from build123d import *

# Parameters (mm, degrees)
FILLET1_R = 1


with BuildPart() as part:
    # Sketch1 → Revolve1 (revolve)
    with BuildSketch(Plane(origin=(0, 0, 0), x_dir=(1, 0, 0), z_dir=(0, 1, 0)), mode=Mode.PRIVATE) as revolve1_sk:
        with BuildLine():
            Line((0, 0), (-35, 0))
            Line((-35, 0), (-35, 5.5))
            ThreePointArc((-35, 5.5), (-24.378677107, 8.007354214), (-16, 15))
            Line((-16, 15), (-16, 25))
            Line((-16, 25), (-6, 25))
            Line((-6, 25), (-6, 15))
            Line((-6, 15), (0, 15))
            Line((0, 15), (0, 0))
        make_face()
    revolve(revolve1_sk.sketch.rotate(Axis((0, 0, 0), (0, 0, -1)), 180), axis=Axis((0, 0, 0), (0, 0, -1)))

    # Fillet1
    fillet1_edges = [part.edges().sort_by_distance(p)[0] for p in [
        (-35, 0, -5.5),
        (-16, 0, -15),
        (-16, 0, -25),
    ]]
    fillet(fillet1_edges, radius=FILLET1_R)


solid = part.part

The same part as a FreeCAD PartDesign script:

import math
import FreeCAD as App
import Part
import Sketcher

V = App.Vector
Q = App.Units.Quantity


def edges_at(feature, points):
    """Names of the edges that pass closest to the given points."""
    edges = feature.Shape.Edges
    near = lambda p: min(range(len(edges)), key=lambda i: edges[i].distToShape(Part.Vertex(*p))[0])
    return sorted({f"Edge{near(p) + 1}" for p in points})

doc = App.newDocument("Part")
body = doc.addObject("PartDesign::Body", "Body")

sketch1 = doc.addObject("Sketcher::SketchObject", "Sketch")
body.addObject(sketch1)
sketch1.AttachmentSupport = (doc.XZ_Plane, [""])
sketch1.MapMode = "FlatFace"
sketch1.addGeometry([
    Part.LineSegment(V(-35, 0, 0), V(0, 0, 0)),
    Part.LineSegment(V(0, 0, 0), V(0, -15, 0)),
    Part.LineSegment(V(0, -15, 0), V(-6, -15, 0)),
    Part.LineSegment(V(-6, -15, 0), V(-6, -25, 0)),
    Part.LineSegment(V(-6, -25, 0), V(-16, -25, 0)),
    Part.LineSegment(V(-16, -25, 0), V(-16, -15, 0)),
    Part.ArcOfCircle(Part.Circle(V(-35, -29, 0), V(0, 0, 1), 24), math.radians(37), math.radians(90)),
    Part.LineSegment(V(-35, -6, 0), V(-35, 0, 0)),
], False)
sketch1.addConstraint([
    Sketcher.Constraint("Coincident", 0, 2, 1, 1),
    Sketcher.Constraint("Coincident", 1, 2, 2, 1),
    Sketcher.Constraint("Coincident", 2, 2, 3, 1),
    Sketcher.Constraint("Coincident", 3, 2, 4, 1),
    Sketcher.Constraint("Coincident", 4, 2, 5, 1),
    Sketcher.Constraint("Coincident", 5, 2, 6, 1),
    Sketcher.Constraint("Coincident", 6, 2, 7, 1),
    Sketcher.Constraint("Coincident", 7, 2, 0, 1),
    Sketcher.Constraint("Horizontal", 0),
    Sketcher.Constraint("Vertical", 1),
    Sketcher.Constraint("Horizontal", 2),
    Sketcher.Constraint("Vertical", 3),
    Sketcher.Constraint("Horizontal", 4),
    Sketcher.Constraint("Vertical", 5),
    Sketcher.Constraint("Vertical", 7),
    Sketcher.Constraint("Coincident", 0, 2, -1, 1),
    Sketcher.Constraint("Horizontal", 2, 2, 5, 2),
    Sketcher.Constraint("Equal", 4, 3),
    Sketcher.Constraint("DistanceX", 0, 1, 0, 2, Q("35 mm")),
    Sketcher.Constraint("DistanceX", 2, 2, 2, 1, Q("6 mm")),
    Sketcher.Constraint("DistanceX", 4, 2, 4, 1, Q("10 mm")),
    Sketcher.Constraint("DistanceY", 1, 2, 1, 1, Q("15 mm")),
    Sketcher.Constraint("Radius", 6, Q("23.75 mm")),
    Sketcher.Constraint("DistanceY", 7, 1, 7, 2, Q("5.5 mm")),
])
revolution = doc.addObject("PartDesign::Revolution", "Revolution")
body.addObject(revolution)
revolution.Profile = sketch1
revolution.ReferenceAxis = (sketch1, ["V_Axis"])
revolution.Angle = 360
doc.recompute()

fillet = doc.addObject("PartDesign::Fillet", "Fillet")
body.addObject(fillet)
fillet.Base = (revolution, edges_at(revolution, [(-35, 0, -5.5), (-16, 0, -15), (-16, 0, -25)]))
fillet.Radius = 1

doc.recompute()
